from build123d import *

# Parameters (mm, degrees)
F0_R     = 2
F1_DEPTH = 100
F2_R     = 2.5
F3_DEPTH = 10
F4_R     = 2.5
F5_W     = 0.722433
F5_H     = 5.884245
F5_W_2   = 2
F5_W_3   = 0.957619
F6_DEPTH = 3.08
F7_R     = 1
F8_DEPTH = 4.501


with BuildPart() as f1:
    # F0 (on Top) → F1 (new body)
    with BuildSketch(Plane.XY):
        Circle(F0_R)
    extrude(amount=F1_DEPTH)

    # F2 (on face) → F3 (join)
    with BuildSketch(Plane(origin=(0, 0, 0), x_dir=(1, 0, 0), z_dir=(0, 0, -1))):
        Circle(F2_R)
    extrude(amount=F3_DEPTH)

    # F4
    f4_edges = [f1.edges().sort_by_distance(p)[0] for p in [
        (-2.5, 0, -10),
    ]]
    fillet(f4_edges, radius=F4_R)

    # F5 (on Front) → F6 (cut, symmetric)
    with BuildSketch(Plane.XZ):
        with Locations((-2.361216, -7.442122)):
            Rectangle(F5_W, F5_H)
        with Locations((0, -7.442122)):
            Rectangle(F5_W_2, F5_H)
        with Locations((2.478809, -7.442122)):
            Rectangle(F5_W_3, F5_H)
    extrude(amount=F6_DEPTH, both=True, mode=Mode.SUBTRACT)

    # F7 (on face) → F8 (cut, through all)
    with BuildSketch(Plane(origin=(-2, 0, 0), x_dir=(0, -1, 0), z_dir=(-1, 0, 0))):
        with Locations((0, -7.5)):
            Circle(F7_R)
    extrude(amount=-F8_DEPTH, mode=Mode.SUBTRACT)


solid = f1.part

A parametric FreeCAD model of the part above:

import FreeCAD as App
import Part
import Sketcher

V = App.Vector


def edges_at(feature, points):
    """Names of the edges that pass closest to the given points."""
    edges = feature.Shape.Edges
    near = lambda p: min(range(len(edges)), key=lambda i: edges[i].distToShape(Part.Vertex(*p))[0])
    return sorted({f"Edge{near(p) + 1}" for p in points})

doc = App.newDocument("Part")
body = doc.addObject("PartDesign::Body", "Body")

# Sketch on XY plane
sketch1 = body.newObject("Sketcher::SketchObject", "Sketch")
sketch1.AttachmentSupport = (doc.getObject("XY_Plane"), [""])
sketch1.MapMode = "FlatFace"
sketch1.addGeometry(Part.Circle(V(0, 0, 0), V(0, 0, 1), 2), False)
sketch1.addConstraint([
    Sketcher.Constraint("Coincident", 0, 3, -1, 1),
    Sketcher.Constraint("Diameter", 0, 4.0),
])
pad1 = body.newObject("PartDesign::Pad", "Pad")
pad1.Profile = sketch1
pad1.Length = 100

# Sketch on XY plane
sketch2 = body.newObject("Sketcher::SketchObject", "Sketch001")
sketch2.AttachmentSupport = (doc.getObject("XY_Plane"), [""])
sketch2.MapMode = "FlatFace"
sketch2.addGeometry(Part.Circle(V(0, 0, 0), V(0, 0, 1), 2.5), False)
sketch2.addConstraint([
    Sketcher.Constraint("Coincident", 0, 3, -1, 1),
    Sketcher.Constraint("Diameter", 0, 5.0),
])
pad2 = body.newObject("PartDesign::Pad", "Pad001")
pad2.Profile = sketch2
pad2.Length = 10
pad2.Reversed = True
doc.recompute()

fillet = body.newObject("PartDesign::Fillet", "Fillet")
fillet.Base = (pad2, edges_at(pad2, [(-2.5, 0, -10)]))
fillet.Radius = 2.5

# Sketch on XZ plane
sketch3 = body.newObject("Sketcher::SketchObject", "Sketch002")
sketch3.AttachmentSupport = (doc.getObject("XZ_Plane"), [""])
sketch3.MapMode = "FlatFace"
sketch3.addGeometry([
    Part.LineSegment(V(-2.722433, -4.5, 0), V(-2.722433, -10.384244, 0)),  # 0
    Part.LineSegment(V(-2.722433, -10.384244, 0), V(-1.999999, -10.384244, 0)),  # 1
    Part.LineSegment(V(-1.999999, -10.384244, 0), V(-1.999999, -4.5, 0)),  # 2
    Part.LineSegment(V(-1.999999, -4.5, 0), V(-2.722433, -4.5, 0)),  # 3
    Part.LineSegment(V(-1, -4.5, 0), V(-1, -10.384244, 0)),  # 4
    Part.LineSegment(V(-1, -10.384244, 0), V(1, -10.384244, 0)),  # 5
    Part.LineSegment(V(1, -10.384244, 0), V(1, -4.5, 0)),  # 6
    Part.LineSegment(V(1, -4.5, 0), V(-1, -4.5, 0)),  # 7
    Part.LineSegment(V(1.999999, -4.5, 0), V(1.999999, -10.384244, 0)),  # 8
    Part.LineSegment(V(1.999999, -10.384244, 0), V(2.957619, -10.384244, 0)),  # 9
    Part.LineSegment(V(2.957619, -10.384244, 0), V(2.957619, -4.5, 0)),  # 10
    Part.LineSegment(V(2.957619, -4.5, 0), V(1.999999, -4.5, 0)),  # 11
], False)
sketch3.addConstraint([
    Sketcher.Constraint("Coincident", 0, 2, 1, 1),
    Sketcher.Constraint("Coincident", 1, 2, 2, 1),
    Sketcher.Constraint("Coincident", 2, 2, 3, 1),
    Sketcher.Constraint("Coincident", 3, 2, 0, 1),
    Sketcher.Constraint("Coincident", 4, 2, 5, 1),
    Sketcher.Constraint("Coincident", 5, 2, 6, 1),
    Sketcher.Constraint("Coincident", 6, 2, 7, 1),
    Sketcher.Constraint("Coincident", 7, 2, 4, 1),
    Sketcher.Constraint("Coincident", 8, 2, 9, 1),
    Sketcher.Constraint("Coincident", 9, 2, 10, 1),
    Sketcher.Constraint("Coincident", 10, 2, 11, 1),
    Sketcher.Constraint("Coincident", 11, 2, 8, 1),
    Sketcher.Constraint("Vertical", 0),
    Sketcher.Constraint("Horizontal", 1),
    Sketcher.Constraint("Vertical", 2),
    Sketcher.Constraint("Horizontal", 3),
    Sketcher.Constraint("Vertical", 4),
    Sketcher.Constraint("Horizontal", 5),
    Sketcher.Constraint("Vertical", 6),
    Sketcher.Constraint("Horizontal", 7),
    Sketcher.Constraint("Vertical", 8),
    Sketcher.Constraint("Horizontal", 9),
    Sketcher.Constraint("Vertical", 10),
    Sketcher.Constraint("Horizontal", 11),
    Sketcher.Constraint("Symmetric", 1, 2, 8, 2, -2),
    Sketcher.Constraint("Horizontal", 1, 2, 4, 2),
    Sketcher.Constraint("Horizontal", 3, 2, 6, 2),
    Sketcher.Constraint("Horizontal", 7, 2, 10, 2),
    Sketcher.Constraint("DistanceX", 5, 1, 5, 2, 2.0),
    Sketcher.Constraint("DistanceX", 1, 2, -1, 1, 1.999999),
    Sketcher.Constraint("DistanceX", 4, 2, -1, 1, 1.0),
    Sketcher.Constraint("DistanceY", 2, 2, -1, 1, 4.5),
    Sketcher.Constraint("DistanceX", 9, 1, 9, 2, 0.957619),
    Sketcher.Constraint("DistanceX", 1, 1, 1, 2, 0.722433),
    Sketcher.Constraint("DistanceY", 0, 2, 0, 1, 5.884245),
])
pocket1 = body.newObject("PartDesign::Pocket", "Pocket")
pocket1.Profile = sketch3
pocket1.Length = 6.16
pocket1.Midplane = True

# Sketch on YZ plane
sketch4 = body.newObject("Sketcher::SketchObject", "Sketch003")
sketch4.AttachmentSupport = (doc.getObject("YZ_Plane"), [""])
sketch4.MapMode = "FlatFace"
sketch4.AttachmentOffset = App.Placement(V(0, 0, -2), App.Rotation())
sketch4.addGeometry(Part.Circle(V(0, -7.5, 0), V(0, 0, 1), 1), False)
sketch4.addConstraint([
    Sketcher.Constraint("PointOnObject", 0, 3, -2),
    Sketcher.Constraint("Diameter", 0, 2.0),
    Sketcher.Constraint("DistanceY", 0, 3, -1, 1, 7.5),
])
pocket2 = body.newObject("PartDesign::Pocket", "Pocket001")
pocket2.Profile = sketch4
pocket2.Type = "ThroughAll"
pocket2.Reversed = True

doc.recompute()
